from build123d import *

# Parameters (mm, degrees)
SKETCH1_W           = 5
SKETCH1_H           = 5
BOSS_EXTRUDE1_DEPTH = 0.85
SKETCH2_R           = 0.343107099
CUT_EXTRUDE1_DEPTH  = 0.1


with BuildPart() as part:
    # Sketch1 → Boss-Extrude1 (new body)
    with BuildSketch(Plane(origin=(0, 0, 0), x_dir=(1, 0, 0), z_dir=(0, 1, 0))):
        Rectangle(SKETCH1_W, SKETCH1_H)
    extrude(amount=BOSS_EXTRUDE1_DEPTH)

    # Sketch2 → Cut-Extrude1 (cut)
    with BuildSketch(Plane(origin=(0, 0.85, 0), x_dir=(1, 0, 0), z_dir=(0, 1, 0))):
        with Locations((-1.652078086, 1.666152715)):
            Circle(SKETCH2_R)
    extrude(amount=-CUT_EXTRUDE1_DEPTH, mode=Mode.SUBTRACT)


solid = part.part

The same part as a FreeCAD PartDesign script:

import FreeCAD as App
import Part
import Sketcher
from FreeCAD import Vector
Q = App.Units.Quantity


def add_polygon(sketch, points):
    """Adds a closed chain of lines whose ends are joined by coincident constraints."""
    first, n = sketch.GeometryCount, len(points)
    for a, b in zip(points, points[1:] + points[:1]):
        sketch.addGeometry(Part.LineSegment(App.Vector(*a, 0), App.Vector(*b, 0)), False)
    for i in range(n):
        sketch.addConstraint(Sketcher.Constraint("Coincident", first + i, 2, first + (i + 1) % n, 1))

doc = App.newDocument("Part")
body = doc.addObject("PartDesign::Body", "Body")

# Sketch on XZ plane
sketch1 = doc.addObject("Sketcher::SketchObject", "Sketch")
body.addObject(sketch1)
sketch1.AttachmentSupport = (doc.XZ_Plane, [""])
sketch1.MapMode = "FlatFace"
add_polygon(sketch1, [(-2, -2), (-2, 2), (2, 2), (2, -2)])  # lines 0-3
sketch1.addConstraint(Sketcher.Constraint("Vertical", 0))
sketch1.addConstraint(Sketcher.Constraint("Horizontal", 1))
sketch1.addConstraint(Sketcher.Constraint("Vertical", 2))
sketch1.addConstraint(Sketcher.Constraint("Horizontal", 3))
sketch1.addConstraint(Sketcher.Constraint("Symmetric", 0, 2, 2, 2, -1, 1))
sketch1.addConstraint(Sketcher.Constraint("Equal", 3, 0))
sketch1.addConstraint(Sketcher.Constraint("DistanceX", 1, 1, 1, 2, Q("5 mm")))
pad1 = doc.addObject("PartDesign::Pad", "Pad")
body.addObject(pad1)
pad1.Profile = sketch1
pad1.Length = 0.85
pad1.Reversed = True

# Sketch on XZ plane
sketch2 = doc.addObject("Sketcher::SketchObject", "Sketch001")
body.addObject(sketch2)
sketch2.AttachmentSupport = (doc.XZ_Plane, [""])
sketch2.MapMode = "FlatFace"
sketch2.AttachmentOffset = App.Placement(Vector(0, 0, -0.85), App.Rotation())
sketch2.addGeometry(Part.Circle(Vector(-1.65, -1.67, 0), Vector(0, 0, 1), 0.34), False)
sketch2.addConstraint(Sketcher.Constraint("Diameter", 0, Q("0.686214 mm")))
sketch2.addConstraint(Sketcher.Constraint("DistanceX", 0, 3, -1, 1, Q("1.652078 mm")))
sketch2.addConstraint(Sketcher.Constraint("DistanceY", 0, 3, -1, 1, Q("1.666153 mm")))
pocket1 = doc.addObject("PartDesign::Pocket", "Pocket")
body.addObject(pocket1)
pocket1.Profile = sketch2
pocket1.Length = 0.1
pocket1.Reversed = True

doc.recompute()
